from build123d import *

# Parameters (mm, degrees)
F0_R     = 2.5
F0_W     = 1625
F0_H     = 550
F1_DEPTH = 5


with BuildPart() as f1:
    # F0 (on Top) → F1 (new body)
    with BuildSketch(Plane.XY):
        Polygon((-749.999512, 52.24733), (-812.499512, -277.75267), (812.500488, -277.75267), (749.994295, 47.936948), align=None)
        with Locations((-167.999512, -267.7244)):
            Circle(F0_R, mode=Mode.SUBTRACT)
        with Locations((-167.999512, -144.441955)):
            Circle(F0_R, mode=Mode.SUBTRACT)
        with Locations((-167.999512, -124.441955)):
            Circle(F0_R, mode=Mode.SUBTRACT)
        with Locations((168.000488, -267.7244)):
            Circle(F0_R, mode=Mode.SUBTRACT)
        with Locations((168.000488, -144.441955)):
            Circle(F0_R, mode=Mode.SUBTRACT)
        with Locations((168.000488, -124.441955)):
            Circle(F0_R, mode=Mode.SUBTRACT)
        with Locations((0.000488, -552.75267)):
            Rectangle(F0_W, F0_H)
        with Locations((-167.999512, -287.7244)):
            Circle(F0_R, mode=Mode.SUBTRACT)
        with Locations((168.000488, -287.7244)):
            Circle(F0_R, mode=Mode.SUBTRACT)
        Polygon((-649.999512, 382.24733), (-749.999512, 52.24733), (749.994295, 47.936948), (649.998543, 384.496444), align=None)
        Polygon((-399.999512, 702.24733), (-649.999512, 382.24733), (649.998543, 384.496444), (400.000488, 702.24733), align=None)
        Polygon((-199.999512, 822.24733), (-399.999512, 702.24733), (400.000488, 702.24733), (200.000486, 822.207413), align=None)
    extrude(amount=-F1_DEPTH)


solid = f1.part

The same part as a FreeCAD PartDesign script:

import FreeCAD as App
import Part
import Sketcher

doc = App.newDocument("Part")
body = doc.addObject("PartDesign::Body", "Body")

# Sketch on XY plane
sketch1 = doc.addObject("Sketcher::SketchObject", "Sketch")
body.addObject(sketch1)
sketch1.AttachmentSupport = (doc.XY_Plane, [""])
sketch1.MapMode = "FlatFace"
sketch1.addGeometry([
    Part.LineSegment(App.Vector(-750, 52.2, 0), App.Vector(-812.5, -277.8, 0)),  # 0
    Part.LineSegment(App.Vector(-812.5, -277.8, 0), App.Vector(-812.5, -827.8, 0)),  # 1
    Part.LineSegment(App.Vector(-812.5, -827.8, 0), App.Vector(812.5, -827.8, 0)),  # 2
    Part.LineSegment(App.Vector(812.5, -827.8, 0), App.Vector(812.5, -277.8, 0)),  # 3
    Part.LineSegment(App.Vector(812.5, -277.8, 0), App.Vector(750, 47.9, 0)),  # 4
    Part.LineSegment(App.Vector(750, 47.9, 0), App.Vector(650, 384.5, 0)),  # 5
    Part.LineSegment(App.Vector(650, 384.5, 0), App.Vector(400, 702.2, 0)),  # 6
    Part.LineSegment(App.Vector(400, 702.2, 0), App.Vector(200, 822.2, 0)),  # 7
    Part.LineSegment(App.Vector(200, 822.2, 0), App.Vector(-200, 822.2, 0)),  # 8
    Part.LineSegment(App.Vector(-200, 822.2, 0), App.Vector(-400, 702.2, 0)),  # 9
    Part.LineSegment(App.Vector(-400, 702.2, 0), App.Vector(-650, 382.2, 0)),  # 10
    Part.LineSegment(App.Vector(-650, 382.2, 0), App.Vector(-750, 52.2, 0)),  # 11
    Part.Circle(App.Vector(-168, -287.7, 0), App.Vector(0, 0, 1), 2.5),  # 12
    Part.Circle(App.Vector(-168, -267.7, 0), App.Vector(0, 0, 1), 2.5),  # 13
    Part.Circle(App.Vector(168, -287.7, 0), App.Vector(0, 0, 1), 2.5),  # 14
    Part.Circle(App.Vector(168, -267.7, 0), App.Vector(0, 0, 1), 2.5),  # 15
    Part.Circle(App.Vector(-168, -144.4, 0), App.Vector(0, 0, 1), 2.5),  # 16
    Part.Circle(App.Vector(-168, -124.4, 0), App.Vector(0, 0, 1), 2.5),  # 17
    Part.Circle(App.Vector(168, -144.4, 0), App.Vector(0, 0, 1), 2.5),  # 18
    Part.Circle(App.Vector(168, -124.4, 0), App.Vector(0, 0, 1), 2.5),  # 19
], False)
sketch1.addConstraint([
    Sketcher.Constraint("Coincident", 0, 2, 1, 1),
    Sketcher.Constraint("Coincident", 1, 2, 2, 1),
    Sketcher.Constraint("Coincident", 2, 2, 3, 1),
    Sketcher.Constraint("Coincident", 3, 2, 4, 1),
    Sketcher.Constraint("Coincident", 4, 2, 5, 1),
    Sketcher.Constraint("Coincident", 5, 2, 6, 1),
    Sketcher.Constraint("Coincident", 6, 2, 7, 1),
    Sketcher.Constraint("Coincident", 7, 2, 8, 1),
    Sketcher.Constraint("Coincident", 8, 2, 9, 1),
    Sketcher.Constraint("Coincident", 9, 2, 10, 1),
    Sketcher.Constraint("Coincident", 10, 2, 11, 1),
    Sketcher.Constraint("Coincident", 11, 2, 0, 1),
    Sketcher.Constraint("Vertical", 1),
    Sketcher.Constraint("Horizontal", 2),
    Sketcher.Constraint("Vertical", 3),
    Sketcher.Constraint("Equal", 12, 13),
    Sketcher.Constraint("Equal", 13, 14),
    Sketcher.Constraint("Equal", 14, 15),
    Sketcher.Constraint("Equal", 15, 16),
    Sketcher.Constraint("Equal", 16, 17),
    Sketcher.Constraint("Equal", 17, 18),
    Sketcher.Constraint("Equal", 18, 19),
    Sketcher.Constraint("Horizontal", 12, 3, 14, 3),
    Sketcher.Constraint("Horizontal", 13, 3, 15, 3),
    Sketcher.Constraint("Horizontal", 16, 3, 18, 3),
    Sketcher.Constraint("Horizontal", 17, 3, 19, 3),
    Sketcher.Constraint("Horizontal", 0, 2, 3, 2),
    Sketcher.Constraint("Horizontal", 6, 2, 9, 2),
    Sketcher.Constraint("Vertical", 12, 3, 13, 3),
    Sketcher.Constraint("Vertical", 14, 3, 15, 3),
    Sketcher.Constraint("Vertical", 13, 3, 16, 3),
    Sketcher.Constraint("Vertical", 16, 3, 17, 3),
    Sketcher.Constraint("Vertical", 15, 3, 18, 3),
    Sketcher.Constraint("Vertical", 18, 3, 19, 3),
    Sketcher.Constraint("Diameter", 12, 5.0),
    Sketcher.Constraint("DistanceX", 2, 1, 2, 2, 1625.0),
    Sketcher.Constraint("DistanceY", 1, 2, 1, 1, 550.0),
    Sketcher.Constraint("Distance", 8, 400.0),
    Sketcher.Constraint("DistanceY", 12, 3, 13, 3, 20.0),
    Sketcher.Constraint("DistanceX", 12, 3, 14, 3, 336.0),
    Sketcher.Constraint("DistanceY", 16, 3, 17, 3, 20.0),
    Sketcher.Constraint("DistanceX", 19, 3, 6, 2, 232.0),
    Sketcher.Constraint("DistanceX", 19, 3, 7, 2, 31.999998),
    Sketcher.Constraint("DistanceY", 6, 2, 8, 2, 120.0),
    Sketcher.Constraint("DistanceX", 9, 2, 8, 2, 200.0),
    Sketcher.Constraint("DistanceX", 10, 2, 9, 2, 250.0),
    Sketcher.Constraint("DistanceY", 10, 2, 9, 2, 320.0),
    Sketcher.Constraint("DistanceY", 0, 2, 10, 2, 660.0),
    Sketcher.Constraint("DistanceY", 0, 2, 11, 2, 330.0),
    Sketcher.Constraint("DistanceX", 11, 2, 10, 2, 100.0),
    Sketcher.Constraint("DistanceX", 0, 2, 12, 3, 644.5),
    Sketcher.Constraint("DistanceY", 12, 3, -1, 1, 287.7244),
    Sketcher.Constraint("DistanceY", 19, 3, 5, 2, 508.938399),
    Sketcher.Constraint("Distance", 4, 331.633459),
    Sketcher.Constraint("Distance", 6, 404.307622),
    Sketcher.Constraint("DistanceX", 0, 2, -1, 1, 812.499512),
    Sketcher.Constraint("DistanceY", 0, 2, -1, 1, 277.75267),
    Sketcher.Constraint("DistanceY", 3, 2, 4, 2, 325.689618),
    Sketcher.Constraint("DistanceX", 5, 2, 4, 2, 99.995752),
    Sketcher.Constraint("DistanceY", 5, 2, 7, 2, 437.710969),
])
pad1 = doc.addObject("PartDesign::Pad", "Pad")
body.addObject(pad1)
pad1.Profile = sketch1
pad1.Length = 5
pad1.Reversed = True

doc.recompute()
